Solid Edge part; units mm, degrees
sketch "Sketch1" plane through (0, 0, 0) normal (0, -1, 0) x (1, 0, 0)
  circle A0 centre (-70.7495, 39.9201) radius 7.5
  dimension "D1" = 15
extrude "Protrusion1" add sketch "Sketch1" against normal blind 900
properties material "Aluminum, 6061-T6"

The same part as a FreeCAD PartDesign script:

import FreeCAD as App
import Part
import Sketcher

V = App.Vector

doc = App.newDocument("Part")
body = doc.addObject("PartDesign::Body", "Body")

# Sketch on XZ plane
sketch1 = body.newObject("Sketcher::SketchObject", "Sketch")
sketch1.AttachmentSupport = (doc.getObject("XZ_Plane"), [""])
sketch1.MapMode = "FlatFace"
sketch1.addGeometry(Part.Circle(V(-71, 40, 0), V(0, 0, 1), 8), False)
sketch1.addConstraint([
    Sketcher.Constraint("Diameter", 0, 15.0),
    Sketcher.Constraint("DistanceY", -1, 1, 0, 3, 39.92),
    Sketcher.Constraint("DistanceX", 0, 3, -1, 1, 70.7495),
])
pad1 = body.newObject("PartDesign::Pad", "Pad")
pad1.Profile = sketch1
pad1.Length = 900
pad1.Reversed = True

doc.recompute()
